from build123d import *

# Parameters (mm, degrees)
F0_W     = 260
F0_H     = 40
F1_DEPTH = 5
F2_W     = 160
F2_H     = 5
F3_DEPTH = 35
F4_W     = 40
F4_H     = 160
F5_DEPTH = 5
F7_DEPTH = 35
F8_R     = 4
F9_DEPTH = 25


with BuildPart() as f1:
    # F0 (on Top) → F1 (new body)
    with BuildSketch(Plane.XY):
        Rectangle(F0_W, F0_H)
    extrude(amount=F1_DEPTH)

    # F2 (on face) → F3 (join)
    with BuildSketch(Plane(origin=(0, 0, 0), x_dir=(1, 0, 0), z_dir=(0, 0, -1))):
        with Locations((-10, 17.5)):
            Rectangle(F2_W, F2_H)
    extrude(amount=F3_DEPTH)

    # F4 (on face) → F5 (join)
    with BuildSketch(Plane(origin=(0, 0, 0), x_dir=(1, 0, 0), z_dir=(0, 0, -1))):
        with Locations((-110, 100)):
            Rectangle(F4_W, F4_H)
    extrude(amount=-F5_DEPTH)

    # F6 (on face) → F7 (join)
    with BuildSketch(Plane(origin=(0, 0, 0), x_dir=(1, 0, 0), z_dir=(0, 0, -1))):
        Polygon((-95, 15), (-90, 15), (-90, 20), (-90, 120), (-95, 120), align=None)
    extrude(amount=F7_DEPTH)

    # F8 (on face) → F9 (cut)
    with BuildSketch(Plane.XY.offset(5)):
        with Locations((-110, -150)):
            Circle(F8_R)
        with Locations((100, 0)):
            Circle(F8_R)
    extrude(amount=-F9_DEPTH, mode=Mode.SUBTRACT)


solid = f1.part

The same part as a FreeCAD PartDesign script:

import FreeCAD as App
import Part
import Sketcher

V = App.Vector

doc = App.newDocument("Part")
body = doc.addObject("PartDesign::Body", "Body")

# Sketch on XY plane
sketch1 = body.newObject("Sketcher::SketchObject", "Sketch")
sketch1.AttachmentSupport = (doc.getObject("XY_Plane"), [""])
sketch1.MapMode = "FlatFace"
sketch1.addGeometry(Part.LineSegment(V(-130, 20, 0), V(-130, -20, 0)), False)
sketch1.addGeometry(Part.LineSegment(V(-130, -20, 0), V(130, -20, 0)), False)
sketch1.addGeometry(Part.LineSegment(V(130, -20, 0), V(130, 20, 0)), False)
sketch1.addGeometry(Part.LineSegment(V(130, 20, 0), V(-130, 20, 0)), False)
sketch1.addConstraint(Sketcher.Constraint("Coincident", 0, 2, 1, 1))
sketch1.addConstraint(Sketcher.Constraint("Coincident", 1, 2, 2, 1))
sketch1.addConstraint(Sketcher.Constraint("Coincident", 2, 2, 3, 1))
sketch1.addConstraint(Sketcher.Constraint("Coincident", 3, 2, 0, 1))
sketch1.addConstraint(Sketcher.Constraint("Vertical", 0))
sketch1.addConstraint(Sketcher.Constraint("Horizontal", 1))
sketch1.addConstraint(Sketcher.Constraint("Vertical", 2))
sketch1.addConstraint(Sketcher.Constraint("Horizontal", 3))
sketch1.addConstraint(Sketcher.Constraint("Symmetric", 0, 2, 2, 2, -1, 1))
sketch1.addConstraint(Sketcher.Constraint("DistanceX", 1, 1, 1, 2, 260.0))
sketch1.addConstraint(Sketcher.Constraint("DistanceY", 0, 2, 0, 1, 40.0))
pad1 = body.newObject("PartDesign::Pad", "Pad")
pad1.Profile = sketch1
pad1.Length = 5

# Sketch on XY plane
sketch2 = body.newObject("Sketcher::SketchObject", "Sketch001")
sketch2.AttachmentSupport = (doc.getObject("XY_Plane"), [""])
sketch2.MapMode = "FlatFace"
sketch2.addGeometry(Part.LineSegment(V(-90, -20, 0), V(-90, -15, 0)), False)
sketch2.addGeometry(Part.LineSegment(V(-90, -15, 0), V(70, -15, 0)), False)
sketch2.addGeometry(Part.LineSegment(V(70, -15, 0), V(70, -20, 0)), False)
sketch2.addGeometry(Part.LineSegment(V(70, -20, 0), V(-90, -20, 0)), False)
sketch2.addConstraint(Sketcher.Constraint("Coincident", 0, 2, 1, 1))
sketch2.addConstraint(Sketcher.Constraint("Coincident", 1, 2, 2, 1))
sketch2.addConstraint(Sketcher.Constraint("Coincident", 2, 2, 3, 1))
sketch2.addConstraint(Sketcher.Constraint("Coincident", 3, 2, 0, 1))
sketch2.addConstraint(Sketcher.Constraint("Vertical", 0))
sketch2.addConstraint(Sketcher.Constraint("Horizontal", 1))
sketch2.addConstraint(Sketcher.Constraint("Vertical", 2))
sketch2.addConstraint(Sketcher.Constraint("Horizontal", 3))
sketch2.addConstraint(Sketcher.Constraint("DistanceX", 1, 1, 1, 2, 160.0))
sketch2.addConstraint(Sketcher.Constraint("DistanceY", 0, 1, 0, 2, 5.0))
sketch2.addConstraint(Sketcher.Constraint("DistanceX", 0, 2, -1, 1, 90.0))
sketch2.addConstraint(Sketcher.Constraint("DistanceY", 0, 2, -1, 1, 15.0))
pad2 = body.newObject("PartDesign::Pad", "Pad001")
pad2.Profile = sketch2
pad2.Length = 35
pad2.Reversed = True

# Sketch on XY plane
sketch3 = body.newObject("Sketcher::SketchObject", "Sketch002")
sketch3.AttachmentSupport = (doc.getObject("XY_Plane"), [""])
sketch3.MapMode = "FlatFace"
sketch3.addGeometry(Part.LineSegment(V(-130, -180, 0), V(-130, -20, 0)), False)
sketch3.addGeometry(Part.LineSegment(V(-130, -20, 0), V(-90, -20, 0)), False)
sketch3.addGeometry(Part.LineSegment(V(-90, -20, 0), V(-90, -180, 0)), False)
sketch3.addGeometry(Part.LineSegment(V(-90, -180, 0), V(-130, -180, 0)), False)
sketch3.addConstraint(Sketcher.Constraint("Coincident", 0, 2, 1, 1))
sketch3.addConstraint(Sketcher.Constraint("Coincident", 1, 2, 2, 1))
sketch3.addConstraint(Sketcher.Constraint("Coincident", 2, 2, 3, 1))
sketch3.addConstraint(Sketcher.Constraint("Coincident", 3, 2, 0, 1))
sketch3.addConstraint(Sketcher.Constraint("Vertical", 0))
sketch3.addConstraint(Sketcher.Constraint("Horizontal", 1))
sketch3.addConstraint(Sketcher.Constraint("Vertical", 2))
sketch3.addConstraint(Sketcher.Constraint("Horizontal", 3))
sketch3.addConstraint(Sketcher.Constraint("DistanceX", 1, 1, 1, 2, 40.0))
sketch3.addConstraint(Sketcher.Constraint("DistanceY", 0, 1, 0, 2, 160.0))
sketch3.addConstraint(Sketcher.Constraint("DistanceX", 0, 2, -1, 1, 130.0))
sketch3.addConstraint(Sketcher.Constraint("DistanceY", 0, 2, -1, 1, 20.0))
pad3 = body.newObject("PartDesign::Pad", "Pad002")
pad3.Profile = sketch3
pad3.Length = 5

# Sketch on XY plane
sketch4 = body.newObject("Sketcher::SketchObject", "Sketch003")
sketch4.AttachmentSupport = (doc.getObject("XY_Plane"), [""])
sketch4.MapMode = "FlatFace"
sketch4.addGeometry(Part.LineSegment(V(-95, -15, 0), V(-90, -15, 0)), False)
sketch4.addGeometry(Part.LineSegment(V(-90, -15, 0), V(-90, -120, 0)), False)
sketch4.addGeometry(Part.LineSegment(V(-90, -120, 0), V(-95, -120, 0)), False)
sketch4.addGeometry(Part.LineSegment(V(-95, -120, 0), V(-95, -15, 0)), False)
sketch4.addConstraint(Sketcher.Constraint("Coincident", 0, 2, 1, 1))
sketch4.addConstraint(Sketcher.Constraint("Coincident", 1, 2, 2, 1))
sketch4.addConstraint(Sketcher.Constraint("Coincident", 2, 2, 3, 1))
sketch4.addConstraint(Sketcher.Constraint("Coincident", 3, 2, 0, 1))
sketch4.addConstraint(Sketcher.Constraint("Horizontal", 0))
sketch4.addConstraint(Sketcher.Constraint("Vertical", 1))
sketch4.addConstraint(Sketcher.Constraint("Horizontal", 2))
sketch4.addConstraint(Sketcher.Constraint("Vertical", 3))
sketch4.addConstraint(Sketcher.Constraint("DistanceX", 0, 1, 0, 2, 5.0))
sketch4.addConstraint(Sketcher.Constraint("DistanceY", 1, 2, 1, 1, 105.0))
sketch4.addConstraint(Sketcher.Constraint("DistanceX", 0, 2, -1, 1, 90.0))
sketch4.addConstraint(Sketcher.Constraint("DistanceY", 0, 2, -1, 1, 15.0))
pad4 = body.newObject("PartDesign::Pad", "Pad003")
pad4.Profile = sketch4
pad4.Length = 35
pad4.Reversed = True

# Sketch on XY plane
sketch5 = body.newObject("Sketcher::SketchObject", "Sketch004")
sketch5.AttachmentSupport = (doc.getObject("XY_Plane"), [""])
sketch5.MapMode = "FlatFace"
sketch5.AttachmentOffset = App.Placement(V(0, 0, 5), App.Rotation())
sketch5.addGeometry(Part.Circle(V(-110, -150, 0), V(0, 0, 1), 4), False)
sketch5.addGeometry(Part.Circle(V(100, 0, 0), V(0, 0, 1), 4), False)
sketch5.addConstraint(Sketcher.Constraint("Equal", 0, 1))
sketch5.addConstraint(Sketcher.Constraint("PointOnObject", 1, 3, -1))
sketch5.addConstraint(Sketcher.Constraint("Diameter", 0, 8.0))
sketch5.addConstraint(Sketcher.Constraint("DistanceX", 0, 3, -1, 1, 110.0))
sketch5.addConstraint(Sketcher.Constraint("DistanceY", 0, 3, -1, 1, 150.0))
sketch5.addConstraint(Sketcher.Constraint("DistanceX", -1, 1, 1, 3, 100.0))
pocket1 = body.newObject("PartDesign::Pocket", "Pocket")
pocket1.Profile = sketch5
pocket1.Length = 25

doc.recompute()
